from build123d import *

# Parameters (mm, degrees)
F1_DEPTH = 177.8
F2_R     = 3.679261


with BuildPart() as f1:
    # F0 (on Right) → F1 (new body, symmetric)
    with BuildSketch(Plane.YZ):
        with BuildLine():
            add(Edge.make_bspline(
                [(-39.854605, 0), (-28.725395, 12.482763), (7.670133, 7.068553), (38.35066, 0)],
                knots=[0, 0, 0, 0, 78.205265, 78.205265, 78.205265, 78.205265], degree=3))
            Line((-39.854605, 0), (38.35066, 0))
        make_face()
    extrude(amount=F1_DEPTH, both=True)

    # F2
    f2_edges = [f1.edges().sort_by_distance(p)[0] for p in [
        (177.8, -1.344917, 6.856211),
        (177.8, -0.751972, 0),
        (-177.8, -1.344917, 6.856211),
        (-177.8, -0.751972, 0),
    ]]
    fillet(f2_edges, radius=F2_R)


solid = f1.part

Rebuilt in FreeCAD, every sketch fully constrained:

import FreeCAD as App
import Part
import Sketcher


def edges_at(feature, points):
    """Names of the edges that pass closest to the given points."""
    edges = feature.Shape.Edges
    near = lambda p: min(range(len(edges)), key=lambda i: edges[i].distToShape(Part.Vertex(*p))[0])
    return sorted({f"Edge{near(p) + 1}" for p in points})

doc = App.newDocument("Part")
params = doc.addObject("Spreadsheet::Sheet", "Params")
for row, (alias, value) in enumerate([
    ("pad1_length", "14 in"),
    ("fillet_radius", "3.679261 mm"),
], start=1):
    params.set(f"A{row}", alias)
    params.set(f"B{row}", "=" + value)
    params.setAlias(f"B{row}", alias)

body = doc.addObject("PartDesign::Body", "Body")

sketch1 = body.newObject("Sketcher::SketchObject", "Sketch")
sketch1.AttachmentSupport = (doc.getObject("YZ_Plane"), [""])
sketch1.MapMode = "FlatFace"
sketch1.addGeometry(Part.BSplineCurve([App.Vector(-39.854605, 0, 0), App.Vector(-28.725395, 12.482763, 0), App.Vector(7.670133, 7.068553, 0), App.Vector(38.35066, 0, 0)], [4, 4], [0, 78.205265], False, 3, [1, 1, 1, 1], False), False)
sketch1.addGeometry(Part.LineSegment(App.Vector(-39.854605, 0, 0), App.Vector(38.35066, 0, 0)), False)
sketch1.addConstraint(Sketcher.Constraint("Block", 0))
sketch1.addConstraint(Sketcher.Constraint("Coincident", 0, 1, 1, 1))
sketch1.addConstraint(Sketcher.Constraint("Coincident", 1, 2, 0, 2))
pad1 = body.newObject("PartDesign::Pad", "Pad")
pad1.Profile = sketch1
pad1.setExpression("Length", "Params.pad1_length")
pad1.Midplane = True
doc.recompute()

fillet = body.newObject("PartDesign::Fillet", "Fillet")
fillet.Base = (pad1, edges_at(pad1, [
    (177.8, -1.345, 6.856),
    (177.8, -0.752, 0),
    (-177.8, -1.345, 6.856),
    (-177.8, -0.752, 0),
]))
fillet.setExpression("Radius", "Params.fillet_radius")

doc.recompute()
